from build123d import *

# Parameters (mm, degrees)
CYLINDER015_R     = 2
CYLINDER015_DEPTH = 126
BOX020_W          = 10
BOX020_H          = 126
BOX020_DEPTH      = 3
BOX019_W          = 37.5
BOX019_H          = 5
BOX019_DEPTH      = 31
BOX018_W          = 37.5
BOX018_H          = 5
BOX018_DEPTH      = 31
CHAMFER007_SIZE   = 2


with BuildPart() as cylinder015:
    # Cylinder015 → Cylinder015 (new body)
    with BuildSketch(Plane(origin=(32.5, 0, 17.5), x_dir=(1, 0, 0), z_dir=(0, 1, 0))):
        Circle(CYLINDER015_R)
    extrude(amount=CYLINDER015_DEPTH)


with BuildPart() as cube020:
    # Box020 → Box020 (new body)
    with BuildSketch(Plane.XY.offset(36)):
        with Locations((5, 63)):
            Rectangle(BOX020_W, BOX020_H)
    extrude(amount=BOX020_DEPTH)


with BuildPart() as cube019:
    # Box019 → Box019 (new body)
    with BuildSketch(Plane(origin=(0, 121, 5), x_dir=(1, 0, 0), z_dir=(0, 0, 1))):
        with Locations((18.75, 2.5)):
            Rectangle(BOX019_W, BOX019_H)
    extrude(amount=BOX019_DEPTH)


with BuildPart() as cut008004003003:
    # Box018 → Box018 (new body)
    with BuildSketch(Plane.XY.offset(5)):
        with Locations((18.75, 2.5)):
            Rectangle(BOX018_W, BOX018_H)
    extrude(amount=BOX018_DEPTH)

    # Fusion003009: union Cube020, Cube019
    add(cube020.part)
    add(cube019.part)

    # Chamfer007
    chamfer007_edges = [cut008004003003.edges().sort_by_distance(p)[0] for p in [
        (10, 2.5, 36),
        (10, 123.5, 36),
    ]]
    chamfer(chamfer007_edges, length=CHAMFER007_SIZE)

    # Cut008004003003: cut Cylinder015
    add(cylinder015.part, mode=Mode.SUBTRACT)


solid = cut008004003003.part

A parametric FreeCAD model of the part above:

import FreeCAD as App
import Part
import Sketcher
Q = App.Units.Quantity


def edges_at(feature, points):
    """Names of the edges that pass closest to the given points."""
    edges = feature.Shape.Edges
    near = lambda p: min(range(len(edges)), key=lambda i: edges[i].distToShape(Part.Vertex(*p))[0])
    return sorted({f"Edge{near(p) + 1}" for p in points})

doc = App.newDocument("Part")
body = doc.addObject("PartDesign::Body", "Body")

# Sketch on XZ plane
sketch1 = body.newObject("Sketcher::SketchObject", "Sketch")
sketch1.AttachmentSupport = (doc.getObject("XZ_Plane"), [""])
sketch1.MapMode = "FlatFace"
sketch1.addGeometry(Part.Circle(App.Vector(32.5, 17.5, 0), App.Vector(0, 0, 1), 2), False)
sketch1.addConstraint(Sketcher.Constraint("Diameter", 0, Q("4 mm")))
sketch1.addConstraint(Sketcher.Constraint("DistanceX", -1, 1, 0, 3, Q("32.5 mm")))
sketch1.addConstraint(Sketcher.Constraint("DistanceY", -1, 1, 0, 3, Q("17.5 mm")))
pad1 = body.newObject("PartDesign::Pad", "Pad")
pad1.Profile = sketch1
pad1.Length = 126
pad1.Reversed = True
body2 = doc.addObject("PartDesign::Body", "Body001")

# Sketch on XY plane
sketch2 = body2.newObject("Sketcher::SketchObject", "Sketch001")
sketch2.AttachmentSupport = (doc.getObject("XY_Plane001"), [""])
sketch2.MapMode = "FlatFace"
sketch2.AttachmentOffset = App.Placement(App.Vector(0, 0, 36), App.Rotation())
sketch2.addGeometry(Part.LineSegment(App.Vector(0, 126, 0), App.Vector(0, 0, 0)), False)
sketch2.addGeometry(Part.LineSegment(App.Vector(0, 0, 0), App.Vector(10, 0, 0)), False)
sketch2.addGeometry(Part.LineSegment(App.Vector(10, 0, 0), App.Vector(10, 126, 0)), False)
sketch2.addGeometry(Part.LineSegment(App.Vector(10, 126, 0), App.Vector(0, 126, 0)), False)
sketch2.addConstraint(Sketcher.Constraint("Coincident", 0, 2, 1, 1))
sketch2.addConstraint(Sketcher.Constraint("Coincident", 1, 2, 2, 1))
sketch2.addConstraint(Sketcher.Constraint("Coincident", 2, 2, 3, 1))
sketch2.addConstraint(Sketcher.Constraint("Coincident", 3, 2, 0, 1))
sketch2.addConstraint(Sketcher.Constraint("Vertical", 0))
sketch2.addConstraint(Sketcher.Constraint("Horizontal", 1))
sketch2.addConstraint(Sketcher.Constraint("Vertical", 2))
sketch2.addConstraint(Sketcher.Constraint("Horizontal", 3))
sketch2.addConstraint(Sketcher.Constraint("Coincident", 0, 2, -1, 1))
sketch2.addConstraint(Sketcher.Constraint("DistanceX", 1, 1, 1, 2, Q("10 mm")))
sketch2.addConstraint(Sketcher.Constraint("DistanceY", 0, 2, 0, 1, Q("126 mm")))
pad2 = body2.newObject("PartDesign::Pad", "Pad001")
pad2.Profile = sketch2
pad2.Length = 3
body3 = doc.addObject("PartDesign::Body", "Body002")

# Sketch on XY plane
sketch3 = body3.newObject("Sketcher::SketchObject", "Sketch002")
sketch3.AttachmentSupport = (doc.getObject("XY_Plane002"), [""])
sketch3.MapMode = "FlatFace"
sketch3.AttachmentOffset = App.Placement(App.Vector(0, 0, 5), App.Rotation())
sketch3.addGeometry(Part.LineSegment(App.Vector(0, 126, 0), App.Vector(0, 121, 0)), False)
sketch3.addGeometry(Part.LineSegment(App.Vector(0, 121, 0), App.Vector(37.5, 121, 0)), False)
sketch3.addGeometry(Part.LineSegment(App.Vector(37.5, 121, 0), App.Vector(37.5, 126, 0)), False)
sketch3.addGeometry(Part.LineSegment(App.Vector(37.5, 126, 0), App.Vector(0, 126, 0)), False)
sketch3.addConstraint(Sketcher.Constraint("Coincident", 0, 2, 1, 1))
sketch3.addConstraint(Sketcher.Constraint("Coincident", 1, 2, 2, 1))
sketch3.addConstraint(Sketcher.Constraint("Coincident", 2, 2, 3, 1))
sketch3.addConstraint(Sketcher.Constraint("Coincident", 3, 2, 0, 1))
sketch3.addConstraint(Sketcher.Constraint("Vertical", 0))
sketch3.addConstraint(Sketcher.Constraint("Horizontal", 1))
sketch3.addConstraint(Sketcher.Constraint("Vertical", 2))
sketch3.addConstraint(Sketcher.Constraint("Horizontal", 3))
sketch3.addConstraint(Sketcher.Constraint("PointOnObject", 0, 2, -2))
sketch3.addConstraint(Sketcher.Constraint("DistanceY", 0, 2, 0, 1, Q("5 mm")))
sketch3.addConstraint(Sketcher.Constraint("DistanceX", 1, 1, 1, 2, Q("37.5 mm")))
sketch3.addConstraint(Sketcher.Constraint("DistanceY", -1, 1, 0, 2, Q("121 mm")))
pad3 = body3.newObject("PartDesign::Pad", "Pad002")
pad3.Profile = sketch3
pad3.Length = 31
body4 = doc.addObject("PartDesign::Body", "Body003")

# Sketch on XY plane
sketch4 = body4.newObject("Sketcher::SketchObject", "Sketch003")
sketch4.AttachmentSupport = (doc.getObject("XY_Plane003"), [""])
sketch4.MapMode = "FlatFace"
sketch4.AttachmentOffset = App.Placement(App.Vector(0, 0, 5), App.Rotation())
sketch4.addGeometry(Part.LineSegment(App.Vector(0, 5, 0), App.Vector(0, 0, 0)), False)
sketch4.addGeometry(Part.LineSegment(App.Vector(0, 0, 0), App.Vector(37.5, 0, 0)), False)
sketch4.addGeometry(Part.LineSegment(App.Vector(37.5, 0, 0), App.Vector(37.5, 5, 0)), False)
sketch4.addGeometry(Part.LineSegment(App.Vector(37.5, 5, 0), App.Vector(0, 5, 0)), False)
sketch4.addConstraint(Sketcher.Constraint("Coincident", 0, 2, 1, 1))
sketch4.addConstraint(Sketcher.Constraint("Coincident", 1, 2, 2, 1))
sketch4.addConstraint(Sketcher.Constraint("Coincident", 2, 2, 3, 1))
sketch4.addConstraint(Sketcher.Constraint("Coincident", 3, 2, 0, 1))
sketch4.addConstraint(Sketcher.Constraint("Vertical", 0))
sketch4.addConstraint(Sketcher.Constraint("Horizontal", 1))
sketch4.addConstraint(Sketcher.Constraint("Vertical", 2))
sketch4.addConstraint(Sketcher.Constraint("Horizontal", 3))
sketch4.addConstraint(Sketcher.Constraint("Coincident", 0, 2, -1, 1))
sketch4.addConstraint(Sketcher.Constraint("DistanceY", 0, 2, 0, 1, Q("5 mm")))
sketch4.addConstraint(Sketcher.Constraint("DistanceX", 1, 1, 1, 2, Q("37.5 mm")))
pad4 = body4.newObject("PartDesign::Pad", "Pad003")
pad4.Profile = sketch4
pad4.Length = 31
doc.recompute()

boolean = body4.newObject("PartDesign::Boolean", "Boolean")
boolean.Type = "Fuse"
boolean.addObjects([body2])
doc.recompute()

boolean2 = body4.newObject("PartDesign::Boolean", "Boolean001")
boolean2.Type = "Fuse"
boolean2.addObjects([body3])
doc.recompute()

chamfer = body4.newObject("PartDesign::Chamfer", "Chamfer")
chamfer.Base = (boolean2, edges_at(boolean2, [(10, 2.5, 36), (10, 123.5, 36)]))
chamfer.Size = 2
doc.recompute()

boolean3 = body4.newObject("PartDesign::Boolean", "Boolean002")
boolean3.Type = "Cut"
boolean3.addObjects([body])

doc.recompute()
